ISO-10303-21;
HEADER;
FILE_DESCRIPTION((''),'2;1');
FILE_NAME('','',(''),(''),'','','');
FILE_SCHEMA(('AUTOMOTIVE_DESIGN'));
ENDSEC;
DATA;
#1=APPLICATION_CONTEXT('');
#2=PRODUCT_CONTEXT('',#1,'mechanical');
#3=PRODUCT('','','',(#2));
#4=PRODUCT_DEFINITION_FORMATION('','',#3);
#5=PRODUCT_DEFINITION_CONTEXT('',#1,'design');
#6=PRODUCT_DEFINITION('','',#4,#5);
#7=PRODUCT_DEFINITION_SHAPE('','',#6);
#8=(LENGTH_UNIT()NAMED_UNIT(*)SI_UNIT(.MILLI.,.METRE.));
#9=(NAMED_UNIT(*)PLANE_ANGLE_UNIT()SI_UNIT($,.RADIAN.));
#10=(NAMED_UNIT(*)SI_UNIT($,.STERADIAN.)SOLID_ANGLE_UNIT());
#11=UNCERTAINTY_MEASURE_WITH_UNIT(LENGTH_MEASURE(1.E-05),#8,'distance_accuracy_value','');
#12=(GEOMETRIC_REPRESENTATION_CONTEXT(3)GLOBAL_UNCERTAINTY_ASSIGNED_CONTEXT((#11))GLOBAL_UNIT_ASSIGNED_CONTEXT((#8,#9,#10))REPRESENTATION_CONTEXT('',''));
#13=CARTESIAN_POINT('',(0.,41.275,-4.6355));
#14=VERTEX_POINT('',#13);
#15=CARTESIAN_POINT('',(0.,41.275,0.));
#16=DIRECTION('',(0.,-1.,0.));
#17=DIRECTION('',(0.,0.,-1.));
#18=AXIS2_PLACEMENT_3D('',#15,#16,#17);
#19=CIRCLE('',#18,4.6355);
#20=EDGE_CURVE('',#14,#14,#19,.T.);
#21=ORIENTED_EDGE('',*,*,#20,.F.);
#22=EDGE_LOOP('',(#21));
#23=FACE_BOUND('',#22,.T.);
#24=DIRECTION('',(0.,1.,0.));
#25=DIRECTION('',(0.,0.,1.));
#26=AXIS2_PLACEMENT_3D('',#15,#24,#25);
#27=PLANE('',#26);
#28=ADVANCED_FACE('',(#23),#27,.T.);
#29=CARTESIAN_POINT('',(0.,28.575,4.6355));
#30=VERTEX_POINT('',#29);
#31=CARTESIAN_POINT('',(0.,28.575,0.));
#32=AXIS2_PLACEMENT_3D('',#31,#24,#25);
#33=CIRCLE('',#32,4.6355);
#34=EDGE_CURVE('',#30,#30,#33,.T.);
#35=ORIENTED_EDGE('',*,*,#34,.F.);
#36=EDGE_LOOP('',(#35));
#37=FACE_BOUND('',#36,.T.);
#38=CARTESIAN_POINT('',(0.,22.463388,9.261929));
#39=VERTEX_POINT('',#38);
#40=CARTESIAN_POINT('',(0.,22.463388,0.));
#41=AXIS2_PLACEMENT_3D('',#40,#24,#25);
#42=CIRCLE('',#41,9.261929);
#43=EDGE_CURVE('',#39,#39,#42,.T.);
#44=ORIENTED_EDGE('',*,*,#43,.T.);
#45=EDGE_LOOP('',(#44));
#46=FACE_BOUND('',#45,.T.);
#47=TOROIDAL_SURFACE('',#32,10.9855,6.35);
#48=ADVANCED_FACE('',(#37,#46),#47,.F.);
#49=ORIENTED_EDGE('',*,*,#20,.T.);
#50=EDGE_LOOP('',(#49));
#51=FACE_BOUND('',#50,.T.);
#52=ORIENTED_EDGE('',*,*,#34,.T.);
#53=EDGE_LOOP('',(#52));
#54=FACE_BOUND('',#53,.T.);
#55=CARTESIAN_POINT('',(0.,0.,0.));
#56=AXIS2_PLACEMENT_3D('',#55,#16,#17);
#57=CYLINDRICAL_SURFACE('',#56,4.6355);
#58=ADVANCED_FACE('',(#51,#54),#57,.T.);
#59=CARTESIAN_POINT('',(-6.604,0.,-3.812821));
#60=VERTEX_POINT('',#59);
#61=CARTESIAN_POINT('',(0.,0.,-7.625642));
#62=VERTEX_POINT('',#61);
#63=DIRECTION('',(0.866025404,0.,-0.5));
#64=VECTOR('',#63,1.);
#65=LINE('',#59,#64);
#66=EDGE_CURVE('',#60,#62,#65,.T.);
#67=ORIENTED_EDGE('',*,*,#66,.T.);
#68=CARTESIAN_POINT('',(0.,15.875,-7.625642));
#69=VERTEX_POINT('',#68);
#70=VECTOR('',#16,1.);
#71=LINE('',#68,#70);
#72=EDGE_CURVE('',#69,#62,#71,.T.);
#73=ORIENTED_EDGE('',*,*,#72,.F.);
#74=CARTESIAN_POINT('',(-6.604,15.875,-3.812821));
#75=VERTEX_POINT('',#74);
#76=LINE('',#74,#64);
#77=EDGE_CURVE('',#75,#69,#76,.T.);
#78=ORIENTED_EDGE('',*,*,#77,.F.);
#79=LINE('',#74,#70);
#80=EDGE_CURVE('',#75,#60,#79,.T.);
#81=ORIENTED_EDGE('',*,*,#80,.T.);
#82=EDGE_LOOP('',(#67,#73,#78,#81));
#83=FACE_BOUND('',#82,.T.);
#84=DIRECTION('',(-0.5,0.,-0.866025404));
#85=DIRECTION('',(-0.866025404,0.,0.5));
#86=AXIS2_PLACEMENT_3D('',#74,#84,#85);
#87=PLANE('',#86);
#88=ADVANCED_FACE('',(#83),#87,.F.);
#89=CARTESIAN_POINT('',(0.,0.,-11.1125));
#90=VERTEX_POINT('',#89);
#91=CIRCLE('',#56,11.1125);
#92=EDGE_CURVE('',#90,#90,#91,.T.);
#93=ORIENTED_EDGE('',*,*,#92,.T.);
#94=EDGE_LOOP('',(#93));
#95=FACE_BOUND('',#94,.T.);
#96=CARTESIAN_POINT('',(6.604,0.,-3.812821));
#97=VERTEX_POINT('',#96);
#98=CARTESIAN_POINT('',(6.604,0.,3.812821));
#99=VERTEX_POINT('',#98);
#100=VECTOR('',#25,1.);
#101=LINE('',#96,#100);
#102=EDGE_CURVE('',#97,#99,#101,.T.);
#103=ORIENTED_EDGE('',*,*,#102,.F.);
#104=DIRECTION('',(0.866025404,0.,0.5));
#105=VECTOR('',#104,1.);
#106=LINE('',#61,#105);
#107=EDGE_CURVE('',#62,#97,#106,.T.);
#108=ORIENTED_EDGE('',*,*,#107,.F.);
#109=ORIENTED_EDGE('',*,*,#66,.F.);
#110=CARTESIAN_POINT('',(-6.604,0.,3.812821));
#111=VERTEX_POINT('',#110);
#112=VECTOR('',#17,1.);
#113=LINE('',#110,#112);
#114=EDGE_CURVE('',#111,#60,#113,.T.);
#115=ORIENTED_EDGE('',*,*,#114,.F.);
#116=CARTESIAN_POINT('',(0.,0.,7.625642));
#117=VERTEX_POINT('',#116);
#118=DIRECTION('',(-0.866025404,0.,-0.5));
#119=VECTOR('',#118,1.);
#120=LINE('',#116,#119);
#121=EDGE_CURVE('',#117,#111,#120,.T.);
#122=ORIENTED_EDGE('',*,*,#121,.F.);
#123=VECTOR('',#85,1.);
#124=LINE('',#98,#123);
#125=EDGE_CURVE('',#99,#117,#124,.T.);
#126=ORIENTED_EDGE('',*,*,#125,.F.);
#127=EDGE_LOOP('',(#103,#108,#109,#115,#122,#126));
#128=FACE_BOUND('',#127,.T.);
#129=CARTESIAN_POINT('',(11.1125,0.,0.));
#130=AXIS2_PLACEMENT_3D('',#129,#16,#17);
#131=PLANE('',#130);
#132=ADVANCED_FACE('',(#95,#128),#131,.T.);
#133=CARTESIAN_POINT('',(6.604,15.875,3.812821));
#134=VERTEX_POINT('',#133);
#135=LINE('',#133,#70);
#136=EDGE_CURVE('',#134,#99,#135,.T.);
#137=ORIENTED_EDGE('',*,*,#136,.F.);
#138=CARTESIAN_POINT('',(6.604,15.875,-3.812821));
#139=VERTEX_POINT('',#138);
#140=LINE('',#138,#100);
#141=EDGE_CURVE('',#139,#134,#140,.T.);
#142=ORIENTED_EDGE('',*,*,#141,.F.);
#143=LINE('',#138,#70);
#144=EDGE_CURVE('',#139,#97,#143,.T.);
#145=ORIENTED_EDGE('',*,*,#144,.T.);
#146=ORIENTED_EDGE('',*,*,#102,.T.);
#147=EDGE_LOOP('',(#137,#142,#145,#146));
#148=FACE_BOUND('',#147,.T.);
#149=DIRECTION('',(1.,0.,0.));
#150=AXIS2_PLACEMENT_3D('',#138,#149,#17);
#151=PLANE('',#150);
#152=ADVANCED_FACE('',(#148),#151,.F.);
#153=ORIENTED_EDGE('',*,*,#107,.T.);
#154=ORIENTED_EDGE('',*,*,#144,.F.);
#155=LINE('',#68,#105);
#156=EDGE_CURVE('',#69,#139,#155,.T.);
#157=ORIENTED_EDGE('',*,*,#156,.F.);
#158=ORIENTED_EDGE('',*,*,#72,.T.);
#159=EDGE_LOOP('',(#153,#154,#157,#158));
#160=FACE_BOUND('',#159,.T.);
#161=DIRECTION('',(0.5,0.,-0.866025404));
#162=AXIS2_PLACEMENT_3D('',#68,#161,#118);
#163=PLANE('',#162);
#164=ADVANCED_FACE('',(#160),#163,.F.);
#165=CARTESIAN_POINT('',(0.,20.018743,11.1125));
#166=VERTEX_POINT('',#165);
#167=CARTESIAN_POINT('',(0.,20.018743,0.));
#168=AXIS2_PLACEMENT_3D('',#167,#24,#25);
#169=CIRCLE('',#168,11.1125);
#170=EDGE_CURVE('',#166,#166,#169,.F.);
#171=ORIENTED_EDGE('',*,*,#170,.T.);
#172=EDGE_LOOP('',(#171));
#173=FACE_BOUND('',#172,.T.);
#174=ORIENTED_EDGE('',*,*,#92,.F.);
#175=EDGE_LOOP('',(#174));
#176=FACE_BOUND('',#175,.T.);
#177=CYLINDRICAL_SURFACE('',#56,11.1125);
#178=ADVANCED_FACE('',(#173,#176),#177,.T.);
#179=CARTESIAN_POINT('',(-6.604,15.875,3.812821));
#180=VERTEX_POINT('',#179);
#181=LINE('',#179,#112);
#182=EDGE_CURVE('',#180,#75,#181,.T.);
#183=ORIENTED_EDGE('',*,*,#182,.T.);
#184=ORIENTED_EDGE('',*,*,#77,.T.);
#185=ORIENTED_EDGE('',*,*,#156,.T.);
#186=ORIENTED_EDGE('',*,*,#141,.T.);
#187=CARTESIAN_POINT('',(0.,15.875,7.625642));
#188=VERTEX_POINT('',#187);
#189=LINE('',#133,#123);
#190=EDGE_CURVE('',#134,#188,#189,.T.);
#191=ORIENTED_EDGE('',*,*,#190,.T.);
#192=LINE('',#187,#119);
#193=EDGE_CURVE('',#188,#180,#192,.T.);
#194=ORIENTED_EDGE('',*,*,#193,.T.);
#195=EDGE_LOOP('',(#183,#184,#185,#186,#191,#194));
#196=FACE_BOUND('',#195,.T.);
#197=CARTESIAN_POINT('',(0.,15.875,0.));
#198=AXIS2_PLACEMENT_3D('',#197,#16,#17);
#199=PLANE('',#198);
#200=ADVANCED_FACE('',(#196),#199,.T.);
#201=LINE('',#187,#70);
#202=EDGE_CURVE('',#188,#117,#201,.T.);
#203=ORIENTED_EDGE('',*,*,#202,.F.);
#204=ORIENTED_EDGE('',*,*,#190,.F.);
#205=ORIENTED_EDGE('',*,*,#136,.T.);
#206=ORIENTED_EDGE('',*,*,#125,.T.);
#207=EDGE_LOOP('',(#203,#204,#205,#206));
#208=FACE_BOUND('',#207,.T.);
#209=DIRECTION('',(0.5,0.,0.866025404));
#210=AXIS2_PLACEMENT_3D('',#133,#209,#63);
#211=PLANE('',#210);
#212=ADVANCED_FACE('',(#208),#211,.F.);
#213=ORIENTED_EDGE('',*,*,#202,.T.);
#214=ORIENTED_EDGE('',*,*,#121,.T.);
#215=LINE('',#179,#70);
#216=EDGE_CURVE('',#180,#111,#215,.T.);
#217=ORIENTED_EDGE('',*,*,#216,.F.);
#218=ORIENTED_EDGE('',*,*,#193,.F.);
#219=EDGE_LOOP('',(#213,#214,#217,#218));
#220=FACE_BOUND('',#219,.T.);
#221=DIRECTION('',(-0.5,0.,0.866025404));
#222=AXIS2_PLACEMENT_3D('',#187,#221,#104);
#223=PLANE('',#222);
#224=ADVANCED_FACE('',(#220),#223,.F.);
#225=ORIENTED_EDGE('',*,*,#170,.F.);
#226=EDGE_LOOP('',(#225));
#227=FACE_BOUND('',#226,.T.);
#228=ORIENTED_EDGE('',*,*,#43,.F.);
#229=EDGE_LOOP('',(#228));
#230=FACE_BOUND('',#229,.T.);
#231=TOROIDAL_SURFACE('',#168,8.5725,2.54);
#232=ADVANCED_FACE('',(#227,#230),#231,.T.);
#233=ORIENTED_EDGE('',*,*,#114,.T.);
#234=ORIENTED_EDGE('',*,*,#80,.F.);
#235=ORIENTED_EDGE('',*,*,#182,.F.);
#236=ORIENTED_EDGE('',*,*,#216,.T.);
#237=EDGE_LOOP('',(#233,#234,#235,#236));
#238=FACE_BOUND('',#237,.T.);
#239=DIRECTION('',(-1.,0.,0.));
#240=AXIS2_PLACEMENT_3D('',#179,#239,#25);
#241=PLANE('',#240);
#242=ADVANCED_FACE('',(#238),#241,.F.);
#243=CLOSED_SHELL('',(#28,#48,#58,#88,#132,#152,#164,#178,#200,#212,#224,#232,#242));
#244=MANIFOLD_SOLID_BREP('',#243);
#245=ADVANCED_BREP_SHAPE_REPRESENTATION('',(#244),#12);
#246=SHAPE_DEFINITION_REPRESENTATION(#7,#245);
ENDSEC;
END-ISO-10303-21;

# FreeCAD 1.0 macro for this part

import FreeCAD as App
import Part
import Sketcher
Q = App.Units.Quantity


def edges_at(feature, points):
    """Names of the edges that pass closest to the given points."""
    edges = feature.Shape.Edges
    near = lambda p: min(range(len(edges)), key=lambda i: edges[i].distToShape(Part.Vertex(*p))[0])
    return sorted({f"Edge{near(p) + 1}" for p in points})


def add_polygon(sketch, points):
    """Adds a closed chain of lines whose ends are joined by coincident constraints."""
    first, n = sketch.GeometryCount, len(points)
    for a, b in zip(points, points[1:] + points[:1]):
        sketch.addGeometry(Part.LineSegment(App.Vector(*a, 0), App.Vector(*b, 0)), False)
    for i in range(n):
        sketch.addConstraint(Sketcher.Constraint("Coincident", first + i, 2, first + (i + 1) % n, 1))

doc = App.newDocument("Part")
body = doc.addObject("PartDesign::Body", "Body")

# Sketch on XY plane
sketch1 = body.newObject("Sketcher::SketchObject", "Sketch")
sketch1.AttachmentSupport = (doc.getObject("XY_Plane"), [""])
sketch1.MapMode = "FlatFace"
add_polygon(sketch1, [(4.6, 41.3), (0, 41.3), (0, 0), (11.1, 0), (11.1, 22.2), (4.6, 22.2)])  # lines 0-5
sketch1.addConstraint([
    Sketcher.Constraint("Horizontal", 0),
    Sketcher.Constraint("Vertical", 1),
    Sketcher.Constraint("Horizontal", 2),
    Sketcher.Constraint("Vertical", 3),
    Sketcher.Constraint("Horizontal", 4),
    Sketcher.Constraint("Vertical", 5),
    Sketcher.Constraint("Coincident", 1, 2, -1, 1),
    Sketcher.Constraint("DistanceY", 5, 1, 5, 2, Q("0.75 in")),
    Sketcher.Constraint("DistanceX", 2, 1, 2, 2, Q("0.4375 in")),
    Sketcher.Constraint("DistanceX", 4, 2, 4, 1, Q("0.255 in")),
    Sketcher.Constraint("DistanceY", 1, 2, 1, 1, Q("1.625 in")),
])
revolution = body.newObject("PartDesign::Revolution", "Revolution")
revolution.Profile = sketch1
revolution.ReferenceAxis = (sketch1, ["V_Axis"])
revolution.Angle = 360

# Sketch on XZ plane
sketch2 = body.newObject("Sketcher::SketchObject", "Sketch001")
sketch2.AttachmentSupport = (doc.getObject("XZ_Plane"), [""])
sketch2.MapMode = "FlatFace"
add_polygon(sketch2, [(7, 4), (0, 8), (-7, 4), (-7, -4), (0, -8), (7, -4)])  # lines 0-5
sketch2.addConstraint([
    Sketcher.Constraint("Vertical", 2),
    Sketcher.Constraint("Vertical", 5),
    Sketcher.Constraint("Symmetric", 0, 2, 3, 2, -1, 1),
    Sketcher.Constraint("Symmetric", 1, 2, 4, 2, -1, 1),
    Sketcher.Constraint("PointOnObject", 0, 2, -2),
    Sketcher.Constraint("Parallel", 0, 3),
    Sketcher.Constraint("Horizontal", 2, 2, 4, 2),
    Sketcher.Constraint("Angle", 0, Q("150 deg")),
    Sketcher.Constraint("DistanceX", 1, 2, -1, 1, Q("0.26 in")),
    Sketcher.Constraint("DistanceY", 2, 2, 2, 1, 7.625642),
])
pocket1 = body.newObject("PartDesign::Pocket", "Pocket")
pocket1.Profile = sketch2
pocket1.Length = Q("0.625 in")
doc.recompute()

fillet = body.newObject("PartDesign::Fillet", "Fillet")
fillet.Base = (pocket1, edges_at(pocket1, [(0, 22.225, 4.636)]))
fillet.Radius = Q("0.25 in")
doc.recompute()

fillet2 = body.newObject("PartDesign::Fillet", "Fillet001")
fillet2.Base = (fillet, edges_at(fillet, [(0, 22.225, 11.113)]))
fillet2.Radius = Q("0.1 in")

doc.recompute()
